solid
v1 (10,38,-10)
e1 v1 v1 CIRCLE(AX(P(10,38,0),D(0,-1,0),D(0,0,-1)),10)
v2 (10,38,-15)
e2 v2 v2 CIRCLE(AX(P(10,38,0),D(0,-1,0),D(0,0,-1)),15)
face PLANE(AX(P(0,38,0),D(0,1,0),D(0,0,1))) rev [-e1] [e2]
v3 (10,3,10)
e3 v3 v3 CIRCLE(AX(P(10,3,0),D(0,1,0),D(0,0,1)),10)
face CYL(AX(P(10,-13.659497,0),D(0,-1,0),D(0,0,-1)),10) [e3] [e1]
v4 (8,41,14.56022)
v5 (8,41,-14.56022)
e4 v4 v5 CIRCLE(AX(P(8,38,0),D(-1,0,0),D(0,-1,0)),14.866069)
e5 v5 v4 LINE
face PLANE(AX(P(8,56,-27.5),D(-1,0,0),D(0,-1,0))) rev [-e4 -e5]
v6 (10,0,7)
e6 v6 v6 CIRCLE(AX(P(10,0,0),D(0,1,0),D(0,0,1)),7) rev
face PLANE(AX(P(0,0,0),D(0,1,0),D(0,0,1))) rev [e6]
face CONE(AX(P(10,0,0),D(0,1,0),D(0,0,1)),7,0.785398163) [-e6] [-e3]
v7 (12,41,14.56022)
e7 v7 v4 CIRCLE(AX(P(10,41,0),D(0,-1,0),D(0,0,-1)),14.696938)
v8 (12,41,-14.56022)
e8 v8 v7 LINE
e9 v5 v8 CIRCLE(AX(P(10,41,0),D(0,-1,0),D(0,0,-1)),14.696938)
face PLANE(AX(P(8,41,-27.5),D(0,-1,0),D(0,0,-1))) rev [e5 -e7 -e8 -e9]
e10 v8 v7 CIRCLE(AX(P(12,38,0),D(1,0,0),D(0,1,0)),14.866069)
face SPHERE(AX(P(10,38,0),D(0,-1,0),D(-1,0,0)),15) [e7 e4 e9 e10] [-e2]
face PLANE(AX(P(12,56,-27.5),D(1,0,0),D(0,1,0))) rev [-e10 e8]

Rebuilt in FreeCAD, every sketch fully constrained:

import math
import FreeCAD as App
import Part
import Sketcher

V = App.Vector


def edges_at(feature, points):
    """Names of the edges that pass closest to the given points."""
    edges = feature.Shape.Edges
    near = lambda p: min(range(len(edges)), key=lambda i: edges[i].distToShape(Part.Vertex(*p))[0])
    return sorted({f"Edge{near(p) + 1}" for p in points})


def add_polygon(sketch, points):
    """Adds a closed chain of lines whose ends are joined by coincident constraints."""
    first, n = sketch.GeometryCount, len(points)
    for a, b in zip(points, points[1:] + points[:1]):
        sketch.addGeometry(Part.LineSegment(App.Vector(*a, 0), App.Vector(*b, 0)), False)
    for i in range(n):
        sketch.addConstraint(Sketcher.Constraint("Coincident", first + i, 2, first + (i + 1) % n, 1))

doc = App.newDocument("Part")
body = doc.addObject("PartDesign::Body", "Body")

# Sketch on XY plane
sketch1 = doc.addObject("Sketcher::SketchObject", "Sketch")
body.addObject(sketch1)
sketch1.AttachmentSupport = (doc.XY_Plane, [""])
sketch1.MapMode = "FlatFace"
sketch1.addGeometry(Part.LineSegment(V(0, 0, 0), V(10, 0, 0)), False)
sketch1.addGeometry(Part.LineSegment(V(10, 0, 0), V(10, 53, 0)), False)
sketch1.addGeometry(Part.ArcOfCircle(Part.Circle(V(10, 38, 0), V(0, 0, 1), 15), math.radians(90), math.radians(180)), False)
sketch1.addGeometry(Part.LineSegment(V(-5, 38, 0), V(0, 38, 0)), False)
sketch1.addGeometry(Part.LineSegment(V(0, 38, 0), V(0, 0, 0)), False)
sketch1.addGeometry(Part.LineSegment(V(10, 0, 0), V(10, 53, 0)), True)  # axis
sketch1.addConstraint(Sketcher.Constraint("Coincident", 0, 2, 1, 1))
sketch1.addConstraint(Sketcher.Constraint("Coincident", 1, 2, 2, 1))
sketch1.addConstraint(Sketcher.Constraint("Coincident", 2, 2, 3, 1))
sketch1.addConstraint(Sketcher.Constraint("Coincident", 3, 2, 4, 1))
sketch1.addConstraint(Sketcher.Constraint("Coincident", 4, 2, 0, 1))
sketch1.addConstraint(Sketcher.Constraint("Horizontal", 0))
sketch1.addConstraint(Sketcher.Constraint("Vertical", 1))
sketch1.addConstraint(Sketcher.Constraint("Horizontal", 3))
sketch1.addConstraint(Sketcher.Constraint("Vertical", 4))
sketch1.addConstraint(Sketcher.Constraint("Vertical", 5))
sketch1.addConstraint(Sketcher.Constraint("Coincident", 4, 2, -1, 1))
sketch1.addConstraint(Sketcher.Constraint("Coincident", 5, 1, 0, 2))
sketch1.addConstraint(Sketcher.Constraint("Vertical", 2, 3, 0, 2))
sketch1.addConstraint(Sketcher.Constraint("Equal", 1, 5))
sketch1.addConstraint(Sketcher.Constraint("Radius", 2, 15.0))
sketch1.addConstraint(Sketcher.Constraint("DistanceX", 0, 1, 0, 2, 10.0))
sketch1.addConstraint(Sketcher.Constraint("DistanceY", 1, 1, 1, 2, 53.0))
sketch1.addConstraint(Sketcher.Constraint("DistanceY", 4, 2, 4, 1, 38.0))
revolution = doc.addObject("PartDesign::Revolution", "Revolution")
body.addObject(revolution)
revolution.Profile = sketch1
revolution.ReferenceAxis = (sketch1, ["Axis0"])
revolution.Angle = 360

# Sketch on XY plane
sketch2 = doc.addObject("Sketcher::SketchObject", "Sketch001")
body.addObject(sketch2)
sketch2.AttachmentSupport = (doc.XY_Plane, [""])
sketch2.MapMode = "FlatFace"
add_polygon(sketch2, [(8, 56), (8, 41), (12, 41), (12, 56)])  # lines 0-3
sketch2.addConstraint(Sketcher.Constraint("Vertical", 0))
sketch2.addConstraint(Sketcher.Constraint("Horizontal", 1))
sketch2.addConstraint(Sketcher.Constraint("Vertical", 2))
sketch2.addConstraint(Sketcher.Constraint("Horizontal", 3))
sketch2.addConstraint(Sketcher.Constraint("DistanceX", 1, 1, 1, 2, 4.0))
sketch2.addConstraint(Sketcher.Constraint("DistanceY", 0, 2, 0, 1, 15.0))
sketch2.addConstraint(Sketcher.Constraint("DistanceX", -1, 1, 0, 2, 8.0))
sketch2.addConstraint(Sketcher.Constraint("DistanceY", -1, 1, 0, 2, 41.0))
pocket1 = doc.addObject("PartDesign::Pocket", "Pocket")
body.addObject(pocket1)
pocket1.Profile = sketch2
pocket1.Length = 55
pocket1.Midplane = True
doc.recompute()

chamfer = doc.addObject("PartDesign::Chamfer", "Chamfer")
body.addObject(chamfer)
chamfer.Base = (pocket1, edges_at(pocket1, [(20, 0, 0)]))
chamfer.Size = 3

doc.recompute()
